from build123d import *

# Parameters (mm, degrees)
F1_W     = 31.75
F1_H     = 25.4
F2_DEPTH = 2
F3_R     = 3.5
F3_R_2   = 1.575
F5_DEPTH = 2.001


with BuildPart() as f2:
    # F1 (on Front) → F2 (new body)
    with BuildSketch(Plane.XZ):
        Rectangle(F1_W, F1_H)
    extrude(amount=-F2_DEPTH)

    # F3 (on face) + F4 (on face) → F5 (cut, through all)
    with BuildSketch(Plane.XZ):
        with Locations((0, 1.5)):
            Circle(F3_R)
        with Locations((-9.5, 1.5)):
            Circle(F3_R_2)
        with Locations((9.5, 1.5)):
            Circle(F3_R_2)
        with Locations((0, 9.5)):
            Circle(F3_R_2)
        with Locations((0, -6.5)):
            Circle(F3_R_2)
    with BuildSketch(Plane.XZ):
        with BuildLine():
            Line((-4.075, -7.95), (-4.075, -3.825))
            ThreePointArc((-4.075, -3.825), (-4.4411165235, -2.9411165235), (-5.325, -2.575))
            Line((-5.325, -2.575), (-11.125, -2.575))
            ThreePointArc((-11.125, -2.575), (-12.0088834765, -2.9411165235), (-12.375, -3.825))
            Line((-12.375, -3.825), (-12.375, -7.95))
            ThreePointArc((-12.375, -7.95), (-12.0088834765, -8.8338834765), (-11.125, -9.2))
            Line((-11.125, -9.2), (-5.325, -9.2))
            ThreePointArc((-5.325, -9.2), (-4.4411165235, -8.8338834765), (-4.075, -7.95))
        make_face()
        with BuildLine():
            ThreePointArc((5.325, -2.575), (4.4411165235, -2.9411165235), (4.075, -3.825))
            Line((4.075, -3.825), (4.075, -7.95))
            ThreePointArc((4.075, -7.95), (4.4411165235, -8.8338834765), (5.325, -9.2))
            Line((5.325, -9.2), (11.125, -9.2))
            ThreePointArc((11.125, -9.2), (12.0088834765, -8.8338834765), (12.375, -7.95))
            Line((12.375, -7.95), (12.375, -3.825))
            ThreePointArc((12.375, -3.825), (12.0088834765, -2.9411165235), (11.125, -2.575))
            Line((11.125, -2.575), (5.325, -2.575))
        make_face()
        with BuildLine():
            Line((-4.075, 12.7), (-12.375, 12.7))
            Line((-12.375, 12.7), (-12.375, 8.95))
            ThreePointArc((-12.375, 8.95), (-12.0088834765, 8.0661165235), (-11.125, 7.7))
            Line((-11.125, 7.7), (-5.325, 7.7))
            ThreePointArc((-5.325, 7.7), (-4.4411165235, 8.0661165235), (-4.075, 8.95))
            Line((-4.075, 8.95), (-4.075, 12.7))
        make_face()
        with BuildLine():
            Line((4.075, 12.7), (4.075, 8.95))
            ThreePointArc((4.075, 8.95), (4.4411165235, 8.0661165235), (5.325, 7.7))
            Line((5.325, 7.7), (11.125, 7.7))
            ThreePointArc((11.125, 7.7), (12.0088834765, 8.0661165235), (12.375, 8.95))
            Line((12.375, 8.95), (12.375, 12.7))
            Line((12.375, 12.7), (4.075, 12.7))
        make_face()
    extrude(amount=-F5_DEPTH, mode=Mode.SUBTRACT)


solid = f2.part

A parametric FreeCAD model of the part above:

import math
import FreeCAD as App
import Part
import Sketcher

V = App.Vector


def add_polygon(sketch, points):
    """Adds a closed chain of lines whose ends are joined by coincident constraints."""
    first, n = sketch.GeometryCount, len(points)
    for a, b in zip(points, points[1:] + points[:1]):
        sketch.addGeometry(Part.LineSegment(App.Vector(*a, 0), App.Vector(*b, 0)), False)
    for i in range(n):
        sketch.addConstraint(Sketcher.Constraint("Coincident", first + i, 2, first + (i + 1) % n, 1))

doc = App.newDocument("Part")
params = doc.addObject("Spreadsheet::Sheet", "Params")
for row, (alias, value) in enumerate([
    ("sketch1_height", "25.4 mm"),
    ("sketch1_width", "31.75 mm"),
    ("pad1_length", "2 mm"),
    ("sketch2_diameter", "7 mm"),
    ("sketch2_diameter2", "3.15 mm"),
    ("sketch2_radius", "1.25 mm"),
    ("sketch2_width", "5.8 mm"),
], start=1):
    params.set(f"A{row}", alias)
    params.set(f"B{row}", "=" + value)
    params.setAlias(f"B{row}", alias)

body = doc.addObject("PartDesign::Body", "Body")

sketch1 = doc.addObject("Sketcher::SketchObject", "Sketch")
body.addObject(sketch1)
sketch1.AttachmentSupport = (doc.XZ_Plane, [""])
sketch1.MapMode = "FlatFace"
add_polygon(sketch1, [(-15.875, 12.7), (-15.875, -12.7), (15.875, -12.7), (15.875, 12.7)])
sketch1.addConstraint([
    Sketcher.Constraint("Vertical", 0),
    Sketcher.Constraint("Horizontal", 1),
    Sketcher.Constraint("Vertical", 2),
    Sketcher.Constraint("Horizontal", 3),
    Sketcher.Constraint("Symmetric", 0, 2, 2, 2, -1, 1),
    Sketcher.Constraint("DistanceY", 0, 2, 0, 1, 25.4),
    Sketcher.Constraint("DistanceX", 1, 1, 1, 2, 31.75),
])
sketch1.setExpression("Constraints[9]", "Params.sketch1_height")
sketch1.setExpression("Constraints[10]", "Params.sketch1_width")
pad1 = doc.addObject("PartDesign::Pad", "Pad")
body.addObject(pad1)
pad1.Profile = sketch1
pad1.setExpression("Length", "Params.pad1_length")
pad1.Reversed = True

sketch2 = doc.addObject("Sketcher::SketchObject", "Sketch001")
body.addObject(sketch2)
sketch2.AttachmentSupport = (doc.XZ_Plane, [""])
sketch2.MapMode = "FlatFace"
sketch2.addGeometry([
    Part.Circle(V(0, 1.5, 0), V(0, 0, 1), 3.5),
    Part.Circle(V(-9.5, 1.5, 0), V(0, 0, 1), 1.575),
    Part.Circle(V(9.5, 1.5, 0), V(0, 0, 1), 1.575),
    Part.Circle(V(0, 9.5, 0), V(0, 0, 1), 1.575),
    Part.Circle(V(0, -6.5, 0), V(0, 0, 1), 1.575),
    Part.LineSegment(V(-4.075, -7.95, 0), V(-4.075, -3.825, 0)),
    Part.ArcOfCircle(Part.Circle(V(-5.325, -3.825, 0), V(0, 0, 1), 1.25), math.radians(0), math.radians(90)),
    Part.LineSegment(V(-5.325, -2.575, 0), V(-11.125, -2.575, 0)),
    Part.ArcOfCircle(Part.Circle(V(-11.125, -3.825, 0), V(0, 0, 1), 1.25), math.radians(90), math.radians(180)),
    Part.LineSegment(V(-12.375, -3.825, 0), V(-12.375, -7.95, 0)),
    Part.ArcOfCircle(Part.Circle(V(-11.125, -7.95, 0), V(0, 0, 1), 1.25), math.radians(180), math.radians(270)),
    Part.LineSegment(V(-11.125, -9.2, 0), V(-5.325, -9.2, 0)),
    Part.ArcOfCircle(Part.Circle(V(-5.325, -7.95, 0), V(0, 0, 1), 1.25), math.radians(-90), math.radians(0)),
    Part.ArcOfCircle(Part.Circle(V(5.325, -3.825, 0), V(0, 0, 1), 1.25), math.radians(90), math.radians(180)),
    Part.LineSegment(V(4.075, -3.825, 0), V(4.075, -7.95, 0)),
    Part.ArcOfCircle(Part.Circle(V(5.325, -7.95, 0), V(0, 0, 1), 1.25), math.radians(180), math.radians(270)),
    Part.LineSegment(V(5.325, -9.2, 0), V(11.125, -9.2, 0)),
    Part.ArcOfCircle(Part.Circle(V(11.125, -7.95, 0), V(0, 0, 1), 1.25), math.radians(-90), math.radians(0)),
    Part.LineSegment(V(12.375, -7.95, 0), V(12.375, -3.825, 0)),
    Part.ArcOfCircle(Part.Circle(V(11.125, -3.825, 0), V(0, 0, 1), 1.25), math.radians(0), math.radians(90)),
    Part.LineSegment(V(11.125, -2.575, 0), V(5.325, -2.575, 0)),
    Part.LineSegment(V(-4.075, 12.7, 0), V(-12.375, 12.7, 0)),
    Part.LineSegment(V(-12.375, 12.7, 0), V(-12.375, 8.95, 0)),
    Part.ArcOfCircle(Part.Circle(V(-11.125, 8.95, 0), V(0, 0, 1), 1.25), math.radians(180), math.radians(270)),
    Part.LineSegment(V(-11.125, 7.7, 0), V(-5.325, 7.7, 0)),
    Part.ArcOfCircle(Part.Circle(V(-5.325, 8.95, 0), V(0, 0, 1), 1.25), math.radians(-90), math.radians(0)),
    Part.LineSegment(V(-4.075, 8.95, 0), V(-4.075, 12.7, 0)),
    Part.LineSegment(V(4.075, 12.7, 0), V(4.075, 8.95, 0)),
    Part.ArcOfCircle(Part.Circle(V(5.325, 8.95, 0), V(0, 0, 1), 1.25), math.radians(180), math.radians(270)),
    Part.LineSegment(V(5.325, 7.7, 0), V(11.125, 7.7, 0)),
    Part.ArcOfCircle(Part.Circle(V(11.125, 8.95, 0), V(0, 0, 1), 1.25), math.radians(-90), math.radians(0)),
    Part.LineSegment(V(12.375, 8.95, 0), V(12.375, 12.7, 0)),
    Part.LineSegment(V(12.375, 12.7, 0), V(4.075, 12.7, 0)),
], False)
sketch2.addConstraint([
    Sketcher.Constraint("Tangent", 5, 2, 6, 1),
    Sketcher.Constraint("Tangent", 6, 2, 7, 1),
    Sketcher.Constraint("Tangent", 7, 2, 8, 1),
    Sketcher.Constraint("Tangent", 8, 2, 9, 1),
    Sketcher.Constraint("Tangent", 9, 2, 10, 1),
    Sketcher.Constraint("Tangent", 10, 2, 11, 1),
    Sketcher.Constraint("Tangent", 11, 2, 12, 1),
    Sketcher.Constraint("Tangent", 12, 2, 5, 1),
    Sketcher.Constraint("Tangent", 13, 2, 14, 1),
    Sketcher.Constraint("Tangent", 14, 2, 15, 1),
    Sketcher.Constraint("Tangent", 15, 2, 16, 1),
    Sketcher.Constraint("Tangent", 16, 2, 17, 1),
    Sketcher.Constraint("Tangent", 17, 2, 18, 1),
    Sketcher.Constraint("Tangent", 18, 2, 19, 1),
    Sketcher.Constraint("Tangent", 19, 2, 20, 1),
    Sketcher.Constraint("Tangent", 20, 2, 13, 1),
    Sketcher.Constraint("Coincident", 21, 2, 22, 1),
    Sketcher.Constraint("Tangent", 22, 2, 23, 1),
    Sketcher.Constraint("Tangent", 23, 2, 24, 1),
    Sketcher.Constraint("Tangent", 24, 2, 25, 1),
    Sketcher.Constraint("Tangent", 25, 2, 26, 1),
    Sketcher.Constraint("Coincident", 26, 2, 21, 1),
    Sketcher.Constraint("Tangent", 27, 2, 28, 1),
    Sketcher.Constraint("Tangent", 28, 2, 29, 1),
    Sketcher.Constraint("Tangent", 29, 2, 30, 1),
    Sketcher.Constraint("Tangent", 30, 2, 31, 1),
    Sketcher.Constraint("Coincident", 31, 2, 32, 1),
    Sketcher.Constraint("Coincident", 32, 2, 27, 1),
    Sketcher.Constraint("Vertical", 5),
    Sketcher.Constraint("Horizontal", 7),
    Sketcher.Constraint("Vertical", 9),
    Sketcher.Constraint("Horizontal", 11),
    Sketcher.Constraint("Vertical", 14),
    Sketcher.Constraint("Horizontal", 16),
    Sketcher.Constraint("Vertical", 18),
    Sketcher.Constraint("Horizontal", 20),
    Sketcher.Constraint("Horizontal", 21),
    Sketcher.Constraint("Vertical", 22),
    Sketcher.Constraint("Horizontal", 24),
    Sketcher.Constraint("Vertical", 26),
    Sketcher.Constraint("Vertical", 27),
    Sketcher.Constraint("Horizontal", 29),
    Sketcher.Constraint("Vertical", 31),
    Sketcher.Constraint("Horizontal", 32),
    Sketcher.Constraint("Equal", 1, 2),
    Sketcher.Constraint("Equal", 2, 3),
    Sketcher.Constraint("Equal", 3, 4),
    Sketcher.Constraint("Equal", 6, 8),
    Sketcher.Constraint("Equal", 8, 10),
    Sketcher.Constraint("Equal", 10, 12),
    Sketcher.Constraint("Equal", 12, 13),
    Sketcher.Constraint("Equal", 13, 15),
    Sketcher.Constraint("Equal", 15, 17),
    Sketcher.Constraint("Equal", 17, 19),
    Sketcher.Constraint("Equal", 19, 23),
    Sketcher.Constraint("Equal", 23, 25),
    Sketcher.Constraint("Equal", 25, 28),
    Sketcher.Constraint("Equal", 28, 30),
    Sketcher.Constraint("Symmetric", 1, 3, 2, 3, -2),
    Sketcher.Constraint("Symmetric", 6, 3, 13, 3, -2),
    Sketcher.Constraint("Symmetric", 10, 3, 17, 3, -2),
    Sketcher.Constraint("Symmetric", 25, 3, 28, 3, -2),
    Sketcher.Constraint("Symmetric", 21, 2, 31, 2, -2),
    Sketcher.Constraint("PointOnObject", 0, 3, -2),
    Sketcher.Constraint("PointOnObject", 3, 3, -2),
    Sketcher.Constraint("PointOnObject", 4, 3, -2),
    Sketcher.Constraint("Horizontal", 0, 3, 1, 3),
    Sketcher.Constraint("Vertical", 10, 3, 23, 3),
    Sketcher.Constraint("Vertical", 12, 3, 25, 3),
    Sketcher.Constraint("Diameter", 0, 7.0),
    Sketcher.Constraint("Diameter", 1, 3.15),
    Sketcher.Constraint("Radius", 6, 1.25),
    Sketcher.Constraint("DistanceX", 7, 2, 7, 1, 5.8),
    Sketcher.Constraint("DistanceX", 1, 3, 2, 3, 19.0),
    Sketcher.Constraint("DistanceY", 0, 3, 3, 3, 8.0),
    Sketcher.Constraint("DistanceY", 4, 3, 0, 3, 8.0),
    Sketcher.Constraint("DistanceY", 23, 2, 21, 2, 5.0),
    Sketcher.Constraint("DistanceY", -1, 1, 0, 3, 1.5),
    Sketcher.Constraint("DistanceY", 10, 2, -1, 1, 9.2),
    Sketcher.Constraint("DistanceY", -1, 1, 21, 2, 12.7),
    Sketcher.Constraint("DistanceY", 5, 1, 5, 2, 4.125),
    Sketcher.Constraint("DistanceX", 6, 3, 13, 3, 10.65),
])
sketch2.setExpression("Constraints[69]", "Params.sketch2_diameter")
sketch2.setExpression("Constraints[70]", "Params.sketch2_diameter2")
sketch2.setExpression("Constraints[71]", "Params.sketch2_radius")
sketch2.setExpression("Constraints[72]", "Params.sketch2_width")
pocket1 = doc.addObject("PartDesign::Pocket", "Pocket")
body.addObject(pocket1)
pocket1.Profile = sketch2
pocket1.Type = "ThroughAll"

doc.recompute()
